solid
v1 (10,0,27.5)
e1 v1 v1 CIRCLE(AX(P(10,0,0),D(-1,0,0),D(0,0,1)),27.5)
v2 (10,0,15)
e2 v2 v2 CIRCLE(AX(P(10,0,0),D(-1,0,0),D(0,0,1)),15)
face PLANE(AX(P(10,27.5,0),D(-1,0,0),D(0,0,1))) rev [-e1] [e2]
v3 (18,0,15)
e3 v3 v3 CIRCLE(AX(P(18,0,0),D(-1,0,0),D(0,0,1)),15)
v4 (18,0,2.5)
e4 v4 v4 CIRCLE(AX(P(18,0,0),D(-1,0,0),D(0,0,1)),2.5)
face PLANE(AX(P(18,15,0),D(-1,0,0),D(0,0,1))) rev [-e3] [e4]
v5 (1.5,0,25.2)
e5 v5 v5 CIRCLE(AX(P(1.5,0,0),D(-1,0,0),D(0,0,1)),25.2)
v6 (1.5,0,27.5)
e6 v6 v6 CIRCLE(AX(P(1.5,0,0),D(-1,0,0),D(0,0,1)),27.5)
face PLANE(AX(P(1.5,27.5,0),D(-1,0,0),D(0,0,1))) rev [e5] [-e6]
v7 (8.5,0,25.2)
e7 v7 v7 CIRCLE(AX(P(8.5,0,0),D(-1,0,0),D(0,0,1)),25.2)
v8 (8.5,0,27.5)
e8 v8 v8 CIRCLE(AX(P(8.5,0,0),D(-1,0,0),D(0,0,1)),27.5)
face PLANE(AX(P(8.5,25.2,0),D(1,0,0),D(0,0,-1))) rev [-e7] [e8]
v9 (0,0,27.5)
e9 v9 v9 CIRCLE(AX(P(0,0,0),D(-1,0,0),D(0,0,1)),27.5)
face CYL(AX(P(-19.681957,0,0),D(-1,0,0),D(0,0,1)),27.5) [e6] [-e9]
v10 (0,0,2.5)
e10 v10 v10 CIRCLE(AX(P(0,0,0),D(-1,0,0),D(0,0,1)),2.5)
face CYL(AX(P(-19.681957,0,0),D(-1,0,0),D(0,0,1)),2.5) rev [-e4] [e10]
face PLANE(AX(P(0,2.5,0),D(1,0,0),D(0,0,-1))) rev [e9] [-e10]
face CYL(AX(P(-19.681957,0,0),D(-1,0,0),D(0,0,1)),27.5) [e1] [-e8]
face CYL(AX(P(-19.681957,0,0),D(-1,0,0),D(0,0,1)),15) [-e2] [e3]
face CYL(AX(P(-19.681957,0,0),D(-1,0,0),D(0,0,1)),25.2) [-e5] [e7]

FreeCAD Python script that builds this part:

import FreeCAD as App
import Part
import Sketcher

V = App.Vector

doc = App.newDocument("Part")
params = doc.addObject("Spreadsheet::Sheet", "Params")
for row, (alias, value) in enumerate([
    ("sketch1_width", "18 mm"),
    ("sketch1_width2", "8 mm"),
    ("sketch1_width3", "7 mm"),
    ("sketch1_height", "25 mm"),
    ("sketch1_height2", "2.3 mm"),
    ("revolution_angle", "360 deg"),
], start=1):
    params.set(f"A{row}", alias)
    params.set(f"B{row}", "=" + value)
    params.setAlias(f"B{row}", alias)

body = doc.addObject("PartDesign::Body", "Body")

sketch1 = doc.addObject("Sketcher::SketchObject", "Sketch")
body.addObject(sketch1)
sketch1.AttachmentSupport = (doc.XY_Plane, [""])
sketch1.MapMode = "FlatFace"
sketch1.addGeometry([
    Part.LineSegment(V(0, 27.5, 0), V(0, 2.5, 0)),
    Part.LineSegment(V(0, 2.5, 0), V(18, 2.5, 0)),
    Part.LineSegment(V(18, 2.5, 0), V(18, 15, 0)),
    Part.LineSegment(V(18, 15, 0), V(10, 15, 0)),
    Part.LineSegment(V(10, 15, 0), V(10, 27.5, 0)),
    Part.LineSegment(V(10, 27.5, 0), V(8.5, 27.5, 0)),
    Part.LineSegment(V(8.5, 27.5, 0), V(8.5, 25.2, 0)),
    Part.LineSegment(V(8.5, 25.2, 0), V(1.5, 25.2, 0)),
    Part.LineSegment(V(1.5, 25.2, 0), V(1.5, 27.5, 0)),
    Part.LineSegment(V(1.5, 27.5, 0), V(0, 27.5, 0)),
], False)
sketch1.addConstraint([
    Sketcher.Constraint("Coincident", 0, 2, 1, 1),
    Sketcher.Constraint("Coincident", 1, 2, 2, 1),
    Sketcher.Constraint("Coincident", 2, 2, 3, 1),
    Sketcher.Constraint("Coincident", 3, 2, 4, 1),
    Sketcher.Constraint("Coincident", 4, 2, 5, 1),
    Sketcher.Constraint("Coincident", 5, 2, 6, 1),
    Sketcher.Constraint("Coincident", 6, 2, 7, 1),
    Sketcher.Constraint("Coincident", 7, 2, 8, 1),
    Sketcher.Constraint("Coincident", 8, 2, 9, 1),
    Sketcher.Constraint("Coincident", 9, 2, 0, 1),
    Sketcher.Constraint("Vertical", 0),
    Sketcher.Constraint("Horizontal", 1),
    Sketcher.Constraint("Vertical", 2),
    Sketcher.Constraint("Horizontal", 3),
    Sketcher.Constraint("Vertical", 4),
    Sketcher.Constraint("Horizontal", 5),
    Sketcher.Constraint("Vertical", 6),
    Sketcher.Constraint("Horizontal", 7),
    Sketcher.Constraint("Vertical", 8),
    Sketcher.Constraint("Horizontal", 9),
    Sketcher.Constraint("PointOnObject", 0, 2, -2),
    Sketcher.Constraint("Horizontal", 5, 2, 8, 2),
    Sketcher.Constraint("Equal", 5, 9),
    Sketcher.Constraint("Equal", 2, 4),
    Sketcher.Constraint("DistanceX", 1, 1, 1, 2, 18.0),
    Sketcher.Constraint("DistanceX", 3, 2, 3, 1, 8.0),
    Sketcher.Constraint("DistanceX", 7, 2, 7, 1, 7.0),
    Sketcher.Constraint("DistanceY", 0, 2, 0, 1, 25.0),
    Sketcher.Constraint("DistanceY", 6, 2, 6, 1, 2.3),
    Sketcher.Constraint("DistanceY", -1, 1, 2, 2, 15.0),
])
sketch1.setExpression("Constraints[24]", "Params.sketch1_width")
sketch1.setExpression("Constraints[25]", "Params.sketch1_width2")
sketch1.setExpression("Constraints[26]", "Params.sketch1_width3")
sketch1.setExpression("Constraints[27]", "Params.sketch1_height")
sketch1.setExpression("Constraints[28]", "Params.sketch1_height2")
revolution = doc.addObject("PartDesign::Revolution", "Revolution")
body.addObject(revolution)
revolution.Profile = sketch1
revolution.ReferenceAxis = (sketch1, ["H_Axis"])
revolution.setExpression("Angle", "Params.revolution_angle")

doc.recompute()
